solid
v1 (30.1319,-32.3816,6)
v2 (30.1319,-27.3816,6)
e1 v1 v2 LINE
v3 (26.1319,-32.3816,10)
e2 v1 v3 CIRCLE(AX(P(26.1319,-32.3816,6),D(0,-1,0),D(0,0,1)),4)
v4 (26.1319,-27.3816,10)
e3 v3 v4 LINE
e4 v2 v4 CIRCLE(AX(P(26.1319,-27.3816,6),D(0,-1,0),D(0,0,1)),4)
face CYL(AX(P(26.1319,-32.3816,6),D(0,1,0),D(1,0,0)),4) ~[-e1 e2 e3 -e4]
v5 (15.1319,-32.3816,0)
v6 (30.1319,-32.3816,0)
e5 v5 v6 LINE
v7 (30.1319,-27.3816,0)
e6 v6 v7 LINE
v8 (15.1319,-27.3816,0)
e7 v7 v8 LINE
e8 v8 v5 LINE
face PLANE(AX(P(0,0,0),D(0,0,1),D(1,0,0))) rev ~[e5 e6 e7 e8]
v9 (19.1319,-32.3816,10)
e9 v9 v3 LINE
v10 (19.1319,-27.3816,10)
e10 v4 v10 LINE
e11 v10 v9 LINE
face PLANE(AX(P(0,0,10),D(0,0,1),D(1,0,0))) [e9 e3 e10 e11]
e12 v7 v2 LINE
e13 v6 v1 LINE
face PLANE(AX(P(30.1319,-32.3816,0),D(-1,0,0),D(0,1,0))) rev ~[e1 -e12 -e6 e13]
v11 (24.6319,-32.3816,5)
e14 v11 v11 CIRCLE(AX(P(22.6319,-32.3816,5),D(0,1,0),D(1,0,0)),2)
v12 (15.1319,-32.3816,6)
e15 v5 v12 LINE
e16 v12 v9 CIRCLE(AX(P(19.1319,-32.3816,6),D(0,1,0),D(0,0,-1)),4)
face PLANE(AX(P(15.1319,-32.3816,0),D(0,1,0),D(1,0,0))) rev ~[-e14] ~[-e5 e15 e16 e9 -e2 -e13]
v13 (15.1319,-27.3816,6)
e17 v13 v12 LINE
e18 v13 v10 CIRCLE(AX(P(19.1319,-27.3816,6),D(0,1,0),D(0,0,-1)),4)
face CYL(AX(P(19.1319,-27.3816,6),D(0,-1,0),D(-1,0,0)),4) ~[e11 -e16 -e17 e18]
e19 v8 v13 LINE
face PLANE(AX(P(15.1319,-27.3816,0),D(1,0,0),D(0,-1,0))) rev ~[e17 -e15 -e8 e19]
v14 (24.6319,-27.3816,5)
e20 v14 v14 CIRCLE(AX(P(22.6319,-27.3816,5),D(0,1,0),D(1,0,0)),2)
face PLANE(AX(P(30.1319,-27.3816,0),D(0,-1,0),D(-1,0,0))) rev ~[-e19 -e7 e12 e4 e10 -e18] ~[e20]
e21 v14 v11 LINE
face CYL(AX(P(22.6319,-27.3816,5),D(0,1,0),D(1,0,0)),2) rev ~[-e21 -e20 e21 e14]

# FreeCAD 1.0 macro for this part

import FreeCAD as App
import Part
import Sketcher

V = App.Vector
Q = App.Units.Quantity


def edges_at(feature, points):
    """Names of the edges that pass closest to the given points."""
    edges = feature.Shape.Edges
    near = lambda p: min(range(len(edges)), key=lambda i: edges[i].distToShape(Part.Vertex(*p))[0])
    return sorted({f"Edge{near(p) + 1}" for p in points})


def add_polygon(sketch, points):
    """Adds a closed chain of lines whose ends are joined by coincident constraints."""
    first, n = sketch.GeometryCount, len(points)
    for a, b in zip(points, points[1:] + points[:1]):
        sketch.addGeometry(Part.LineSegment(App.Vector(*a, 0), App.Vector(*b, 0)), False)
    for i in range(n):
        sketch.addConstraint(Sketcher.Constraint("Coincident", first + i, 2, first + (i + 1) % n, 1))

doc = App.newDocument("Part")
params = doc.addObject("Spreadsheet::Sheet", "Params")
for row, (alias, value) in enumerate([
    ("sketch1_width", "15 mm"),
    ("sketch1_height", "5 mm"),
    ("pad1_length", "10 mm"),
    ("fillet_radius", "4 mm"),
    ("sketch2_diameter", "4 mm"),
    ("pocket1_length", "7.5 mm"),
], start=1):
    params.set(f"A{row}", alias)
    params.set(f"B{row}", "=" + value)
    params.setAlias(f"B{row}", alias)

body = doc.addObject("PartDesign::Body", "Body")

# Sketch on XY plane
sketch1 = body.newObject("Sketcher::SketchObject", "Sketch")
sketch1.AttachmentSupport = (doc.getObject("XY_Plane"), [""])
sketch1.MapMode = "FlatFace"
add_polygon(sketch1, [(30, -32), (30, -27), (15, -27), (15, -32)])  # lines 0-3
sketch1.addConstraint([
    Sketcher.Constraint("Vertical", 0),
    Sketcher.Constraint("Horizontal", 1),
    Sketcher.Constraint("Vertical", 2),
    Sketcher.Constraint("Horizontal", 3),
    Sketcher.Constraint("DistanceX", 1, 2, 1, 1, Q("15 mm")),
    Sketcher.Constraint("DistanceY", 0, 1, 0, 2, Q("5 mm")),
    Sketcher.Constraint("DistanceX", -1, 1, 0, 2, Q("30.132 mm")),
    Sketcher.Constraint("DistanceY", 0, 2, -1, 1, Q("27.3816 mm")),
])
sketch1.setExpression("Constraints[8]", "Params.sketch1_width")
sketch1.setExpression("Constraints[9]", "Params.sketch1_height")
pad1 = body.newObject("PartDesign::Pad", "Pad")
pad1.Profile = sketch1
pad1.setExpression("Length", "Params.pad1_length")
doc.recompute()

fillet = body.newObject("PartDesign::Fillet", "Fillet")
fillet.Base = (pad1, edges_at(pad1, [(15.132, -29.882, 10), (30.132, -29.882, 10)]))
fillet.setExpression("Radius", "Params.fillet_radius")

# Sketch on XZ plane
sketch2 = body.newObject("Sketcher::SketchObject", "Sketch001")
sketch2.AttachmentSupport = (doc.getObject("XZ_Plane"), [""])
sketch2.MapMode = "FlatFace"
sketch2.AttachmentOffset = App.Placement(V(0, 0, 27.3816), App.Rotation())
sketch2.addGeometry(Part.Circle(V(22.6, 5, 0), V(0, 0, 1), 2), False)
sketch2.addConstraint([
    Sketcher.Constraint("Diameter", 0, Q("4 mm")),
    Sketcher.Constraint("DistanceY", -1, 1, 0, 3, Q("5 mm")),
    Sketcher.Constraint("DistanceX", -1, 1, 0, 3, Q("22.632 mm")),
])
sketch2.setExpression("Constraints[0]", "Params.sketch2_diameter")
pocket1 = body.newObject("PartDesign::Pocket", "Pocket")
pocket1.Profile = sketch2
pocket1.setExpression("Length", "Params.pocket1_length")
pocket1.Reversed = True

doc.recompute()
